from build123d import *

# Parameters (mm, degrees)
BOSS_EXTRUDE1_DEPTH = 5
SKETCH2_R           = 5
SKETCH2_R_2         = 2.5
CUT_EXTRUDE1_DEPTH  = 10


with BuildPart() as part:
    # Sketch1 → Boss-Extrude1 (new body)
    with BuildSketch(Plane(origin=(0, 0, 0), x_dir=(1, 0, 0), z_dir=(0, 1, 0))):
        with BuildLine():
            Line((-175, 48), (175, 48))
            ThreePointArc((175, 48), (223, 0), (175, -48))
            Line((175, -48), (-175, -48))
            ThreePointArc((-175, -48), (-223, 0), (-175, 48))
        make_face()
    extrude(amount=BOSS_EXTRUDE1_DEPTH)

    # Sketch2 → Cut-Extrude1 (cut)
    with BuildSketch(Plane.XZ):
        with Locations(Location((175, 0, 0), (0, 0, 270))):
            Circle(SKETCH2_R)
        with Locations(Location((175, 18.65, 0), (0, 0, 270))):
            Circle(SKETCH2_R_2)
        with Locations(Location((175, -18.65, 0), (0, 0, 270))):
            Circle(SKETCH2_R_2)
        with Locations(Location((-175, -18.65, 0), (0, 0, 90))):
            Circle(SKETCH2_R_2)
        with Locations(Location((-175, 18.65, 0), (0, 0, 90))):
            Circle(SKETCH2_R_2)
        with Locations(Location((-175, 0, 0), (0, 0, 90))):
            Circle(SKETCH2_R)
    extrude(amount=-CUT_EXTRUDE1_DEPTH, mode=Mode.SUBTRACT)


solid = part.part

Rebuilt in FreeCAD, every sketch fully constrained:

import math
import FreeCAD as App
import Part
import Sketcher

V = App.Vector

doc = App.newDocument("Part")
body = doc.addObject("PartDesign::Body", "Body")

sketch1 = body.newObject("Sketcher::SketchObject", "Sketch")
sketch1.AttachmentSupport = (doc.getObject("XZ_Plane"), [""])
sketch1.MapMode = "FlatFace"
sketch1.addGeometry([
    Part.LineSegment(V(175, -48, 0), V(-175, -48, 0)),
    Part.ArcOfCircle(Part.Circle(V(-175, 0, 0), V(0, 0, 1), 48), math.radians(90), math.radians(270)),
    Part.LineSegment(V(-175, 48, 0), V(175, 48, 0)),
    Part.ArcOfCircle(Part.Circle(V(175, 0, 0), V(0, 0, 1), 48), math.radians(-90), math.radians(90)),
], False)
sketch1.addConstraint([
    Sketcher.Constraint("Tangent", 0, 2, 1, 2),
    Sketcher.Constraint("Tangent", 1, 1, 2, 1),
    Sketcher.Constraint("Tangent", 2, 2, 3, 2),
    Sketcher.Constraint("Tangent", 3, 1, 0, 1),
    Sketcher.Constraint("Horizontal", 0),
    Sketcher.Constraint("Horizontal", 2),
    Sketcher.Constraint("Symmetric", 1, 3, 3, 3, -1, 1),
    Sketcher.Constraint("Radius", 1, 48.0),
    Sketcher.Constraint("DistanceX", 0, 2, 0, 1, 350.0),
])
pad1 = body.newObject("PartDesign::Pad", "Pad")
pad1.Profile = sketch1
pad1.Length = 5
pad1.Reversed = True

sketch2 = body.newObject("Sketcher::SketchObject", "Sketch001")
sketch2.AttachmentSupport = (doc.getObject("XZ_Plane"), [""])
sketch2.MapMode = "FlatFace"
sketch2.addGeometry([
    Part.Circle(V(175, 0, 0), V(0, 0, 1), 5),
    Part.Circle(V(175, 18.6, 0), V(0, 0, 1), 2.5),
    Part.Circle(V(175, -18.6, 0), V(0, 0, 1), 2.5),
    Part.Circle(V(-175, -18.6, 0), V(0, 0, 1), 2.5),
    Part.Circle(V(-175, 18.6, 0), V(0, 0, 1), 2.5),
    Part.Circle(V(-175, 0, 0), V(0, 0, 1), 5),
], False)
sketch2.addConstraint([
    Sketcher.Constraint("Equal", 1, 2),
    Sketcher.Constraint("Equal", 2, 3),
    Sketcher.Constraint("Equal", 3, 4),
    Sketcher.Constraint("Equal", 0, 5),
    Sketcher.Constraint("Symmetric", 1, 3, 3, 3, -1, 1),
    Sketcher.Constraint("Symmetric", 2, 3, 4, 3, -1, 1),
    Sketcher.Constraint("Symmetric", 0, 3, 5, 3, -1, 1),
    Sketcher.Constraint("Symmetric", 2, 3, 3, 3, -2),
    Sketcher.Constraint("PointOnObject", 0, 3, -1),
    Sketcher.Constraint("Vertical", 0, 3, 1, 3),
    Sketcher.Constraint("Diameter", 0, 10.0),
    Sketcher.Constraint("Diameter", 1, 5.0),
    Sketcher.Constraint("DistanceX", -1, 1, 0, 3, 175.0),
    Sketcher.Constraint("DistanceY", 2, 3, 1, 3, 37.3),
])
pocket1 = body.newObject("PartDesign::Pocket", "Pocket")
pocket1.Profile = sketch2
pocket1.Length = 10

doc.recompute()
